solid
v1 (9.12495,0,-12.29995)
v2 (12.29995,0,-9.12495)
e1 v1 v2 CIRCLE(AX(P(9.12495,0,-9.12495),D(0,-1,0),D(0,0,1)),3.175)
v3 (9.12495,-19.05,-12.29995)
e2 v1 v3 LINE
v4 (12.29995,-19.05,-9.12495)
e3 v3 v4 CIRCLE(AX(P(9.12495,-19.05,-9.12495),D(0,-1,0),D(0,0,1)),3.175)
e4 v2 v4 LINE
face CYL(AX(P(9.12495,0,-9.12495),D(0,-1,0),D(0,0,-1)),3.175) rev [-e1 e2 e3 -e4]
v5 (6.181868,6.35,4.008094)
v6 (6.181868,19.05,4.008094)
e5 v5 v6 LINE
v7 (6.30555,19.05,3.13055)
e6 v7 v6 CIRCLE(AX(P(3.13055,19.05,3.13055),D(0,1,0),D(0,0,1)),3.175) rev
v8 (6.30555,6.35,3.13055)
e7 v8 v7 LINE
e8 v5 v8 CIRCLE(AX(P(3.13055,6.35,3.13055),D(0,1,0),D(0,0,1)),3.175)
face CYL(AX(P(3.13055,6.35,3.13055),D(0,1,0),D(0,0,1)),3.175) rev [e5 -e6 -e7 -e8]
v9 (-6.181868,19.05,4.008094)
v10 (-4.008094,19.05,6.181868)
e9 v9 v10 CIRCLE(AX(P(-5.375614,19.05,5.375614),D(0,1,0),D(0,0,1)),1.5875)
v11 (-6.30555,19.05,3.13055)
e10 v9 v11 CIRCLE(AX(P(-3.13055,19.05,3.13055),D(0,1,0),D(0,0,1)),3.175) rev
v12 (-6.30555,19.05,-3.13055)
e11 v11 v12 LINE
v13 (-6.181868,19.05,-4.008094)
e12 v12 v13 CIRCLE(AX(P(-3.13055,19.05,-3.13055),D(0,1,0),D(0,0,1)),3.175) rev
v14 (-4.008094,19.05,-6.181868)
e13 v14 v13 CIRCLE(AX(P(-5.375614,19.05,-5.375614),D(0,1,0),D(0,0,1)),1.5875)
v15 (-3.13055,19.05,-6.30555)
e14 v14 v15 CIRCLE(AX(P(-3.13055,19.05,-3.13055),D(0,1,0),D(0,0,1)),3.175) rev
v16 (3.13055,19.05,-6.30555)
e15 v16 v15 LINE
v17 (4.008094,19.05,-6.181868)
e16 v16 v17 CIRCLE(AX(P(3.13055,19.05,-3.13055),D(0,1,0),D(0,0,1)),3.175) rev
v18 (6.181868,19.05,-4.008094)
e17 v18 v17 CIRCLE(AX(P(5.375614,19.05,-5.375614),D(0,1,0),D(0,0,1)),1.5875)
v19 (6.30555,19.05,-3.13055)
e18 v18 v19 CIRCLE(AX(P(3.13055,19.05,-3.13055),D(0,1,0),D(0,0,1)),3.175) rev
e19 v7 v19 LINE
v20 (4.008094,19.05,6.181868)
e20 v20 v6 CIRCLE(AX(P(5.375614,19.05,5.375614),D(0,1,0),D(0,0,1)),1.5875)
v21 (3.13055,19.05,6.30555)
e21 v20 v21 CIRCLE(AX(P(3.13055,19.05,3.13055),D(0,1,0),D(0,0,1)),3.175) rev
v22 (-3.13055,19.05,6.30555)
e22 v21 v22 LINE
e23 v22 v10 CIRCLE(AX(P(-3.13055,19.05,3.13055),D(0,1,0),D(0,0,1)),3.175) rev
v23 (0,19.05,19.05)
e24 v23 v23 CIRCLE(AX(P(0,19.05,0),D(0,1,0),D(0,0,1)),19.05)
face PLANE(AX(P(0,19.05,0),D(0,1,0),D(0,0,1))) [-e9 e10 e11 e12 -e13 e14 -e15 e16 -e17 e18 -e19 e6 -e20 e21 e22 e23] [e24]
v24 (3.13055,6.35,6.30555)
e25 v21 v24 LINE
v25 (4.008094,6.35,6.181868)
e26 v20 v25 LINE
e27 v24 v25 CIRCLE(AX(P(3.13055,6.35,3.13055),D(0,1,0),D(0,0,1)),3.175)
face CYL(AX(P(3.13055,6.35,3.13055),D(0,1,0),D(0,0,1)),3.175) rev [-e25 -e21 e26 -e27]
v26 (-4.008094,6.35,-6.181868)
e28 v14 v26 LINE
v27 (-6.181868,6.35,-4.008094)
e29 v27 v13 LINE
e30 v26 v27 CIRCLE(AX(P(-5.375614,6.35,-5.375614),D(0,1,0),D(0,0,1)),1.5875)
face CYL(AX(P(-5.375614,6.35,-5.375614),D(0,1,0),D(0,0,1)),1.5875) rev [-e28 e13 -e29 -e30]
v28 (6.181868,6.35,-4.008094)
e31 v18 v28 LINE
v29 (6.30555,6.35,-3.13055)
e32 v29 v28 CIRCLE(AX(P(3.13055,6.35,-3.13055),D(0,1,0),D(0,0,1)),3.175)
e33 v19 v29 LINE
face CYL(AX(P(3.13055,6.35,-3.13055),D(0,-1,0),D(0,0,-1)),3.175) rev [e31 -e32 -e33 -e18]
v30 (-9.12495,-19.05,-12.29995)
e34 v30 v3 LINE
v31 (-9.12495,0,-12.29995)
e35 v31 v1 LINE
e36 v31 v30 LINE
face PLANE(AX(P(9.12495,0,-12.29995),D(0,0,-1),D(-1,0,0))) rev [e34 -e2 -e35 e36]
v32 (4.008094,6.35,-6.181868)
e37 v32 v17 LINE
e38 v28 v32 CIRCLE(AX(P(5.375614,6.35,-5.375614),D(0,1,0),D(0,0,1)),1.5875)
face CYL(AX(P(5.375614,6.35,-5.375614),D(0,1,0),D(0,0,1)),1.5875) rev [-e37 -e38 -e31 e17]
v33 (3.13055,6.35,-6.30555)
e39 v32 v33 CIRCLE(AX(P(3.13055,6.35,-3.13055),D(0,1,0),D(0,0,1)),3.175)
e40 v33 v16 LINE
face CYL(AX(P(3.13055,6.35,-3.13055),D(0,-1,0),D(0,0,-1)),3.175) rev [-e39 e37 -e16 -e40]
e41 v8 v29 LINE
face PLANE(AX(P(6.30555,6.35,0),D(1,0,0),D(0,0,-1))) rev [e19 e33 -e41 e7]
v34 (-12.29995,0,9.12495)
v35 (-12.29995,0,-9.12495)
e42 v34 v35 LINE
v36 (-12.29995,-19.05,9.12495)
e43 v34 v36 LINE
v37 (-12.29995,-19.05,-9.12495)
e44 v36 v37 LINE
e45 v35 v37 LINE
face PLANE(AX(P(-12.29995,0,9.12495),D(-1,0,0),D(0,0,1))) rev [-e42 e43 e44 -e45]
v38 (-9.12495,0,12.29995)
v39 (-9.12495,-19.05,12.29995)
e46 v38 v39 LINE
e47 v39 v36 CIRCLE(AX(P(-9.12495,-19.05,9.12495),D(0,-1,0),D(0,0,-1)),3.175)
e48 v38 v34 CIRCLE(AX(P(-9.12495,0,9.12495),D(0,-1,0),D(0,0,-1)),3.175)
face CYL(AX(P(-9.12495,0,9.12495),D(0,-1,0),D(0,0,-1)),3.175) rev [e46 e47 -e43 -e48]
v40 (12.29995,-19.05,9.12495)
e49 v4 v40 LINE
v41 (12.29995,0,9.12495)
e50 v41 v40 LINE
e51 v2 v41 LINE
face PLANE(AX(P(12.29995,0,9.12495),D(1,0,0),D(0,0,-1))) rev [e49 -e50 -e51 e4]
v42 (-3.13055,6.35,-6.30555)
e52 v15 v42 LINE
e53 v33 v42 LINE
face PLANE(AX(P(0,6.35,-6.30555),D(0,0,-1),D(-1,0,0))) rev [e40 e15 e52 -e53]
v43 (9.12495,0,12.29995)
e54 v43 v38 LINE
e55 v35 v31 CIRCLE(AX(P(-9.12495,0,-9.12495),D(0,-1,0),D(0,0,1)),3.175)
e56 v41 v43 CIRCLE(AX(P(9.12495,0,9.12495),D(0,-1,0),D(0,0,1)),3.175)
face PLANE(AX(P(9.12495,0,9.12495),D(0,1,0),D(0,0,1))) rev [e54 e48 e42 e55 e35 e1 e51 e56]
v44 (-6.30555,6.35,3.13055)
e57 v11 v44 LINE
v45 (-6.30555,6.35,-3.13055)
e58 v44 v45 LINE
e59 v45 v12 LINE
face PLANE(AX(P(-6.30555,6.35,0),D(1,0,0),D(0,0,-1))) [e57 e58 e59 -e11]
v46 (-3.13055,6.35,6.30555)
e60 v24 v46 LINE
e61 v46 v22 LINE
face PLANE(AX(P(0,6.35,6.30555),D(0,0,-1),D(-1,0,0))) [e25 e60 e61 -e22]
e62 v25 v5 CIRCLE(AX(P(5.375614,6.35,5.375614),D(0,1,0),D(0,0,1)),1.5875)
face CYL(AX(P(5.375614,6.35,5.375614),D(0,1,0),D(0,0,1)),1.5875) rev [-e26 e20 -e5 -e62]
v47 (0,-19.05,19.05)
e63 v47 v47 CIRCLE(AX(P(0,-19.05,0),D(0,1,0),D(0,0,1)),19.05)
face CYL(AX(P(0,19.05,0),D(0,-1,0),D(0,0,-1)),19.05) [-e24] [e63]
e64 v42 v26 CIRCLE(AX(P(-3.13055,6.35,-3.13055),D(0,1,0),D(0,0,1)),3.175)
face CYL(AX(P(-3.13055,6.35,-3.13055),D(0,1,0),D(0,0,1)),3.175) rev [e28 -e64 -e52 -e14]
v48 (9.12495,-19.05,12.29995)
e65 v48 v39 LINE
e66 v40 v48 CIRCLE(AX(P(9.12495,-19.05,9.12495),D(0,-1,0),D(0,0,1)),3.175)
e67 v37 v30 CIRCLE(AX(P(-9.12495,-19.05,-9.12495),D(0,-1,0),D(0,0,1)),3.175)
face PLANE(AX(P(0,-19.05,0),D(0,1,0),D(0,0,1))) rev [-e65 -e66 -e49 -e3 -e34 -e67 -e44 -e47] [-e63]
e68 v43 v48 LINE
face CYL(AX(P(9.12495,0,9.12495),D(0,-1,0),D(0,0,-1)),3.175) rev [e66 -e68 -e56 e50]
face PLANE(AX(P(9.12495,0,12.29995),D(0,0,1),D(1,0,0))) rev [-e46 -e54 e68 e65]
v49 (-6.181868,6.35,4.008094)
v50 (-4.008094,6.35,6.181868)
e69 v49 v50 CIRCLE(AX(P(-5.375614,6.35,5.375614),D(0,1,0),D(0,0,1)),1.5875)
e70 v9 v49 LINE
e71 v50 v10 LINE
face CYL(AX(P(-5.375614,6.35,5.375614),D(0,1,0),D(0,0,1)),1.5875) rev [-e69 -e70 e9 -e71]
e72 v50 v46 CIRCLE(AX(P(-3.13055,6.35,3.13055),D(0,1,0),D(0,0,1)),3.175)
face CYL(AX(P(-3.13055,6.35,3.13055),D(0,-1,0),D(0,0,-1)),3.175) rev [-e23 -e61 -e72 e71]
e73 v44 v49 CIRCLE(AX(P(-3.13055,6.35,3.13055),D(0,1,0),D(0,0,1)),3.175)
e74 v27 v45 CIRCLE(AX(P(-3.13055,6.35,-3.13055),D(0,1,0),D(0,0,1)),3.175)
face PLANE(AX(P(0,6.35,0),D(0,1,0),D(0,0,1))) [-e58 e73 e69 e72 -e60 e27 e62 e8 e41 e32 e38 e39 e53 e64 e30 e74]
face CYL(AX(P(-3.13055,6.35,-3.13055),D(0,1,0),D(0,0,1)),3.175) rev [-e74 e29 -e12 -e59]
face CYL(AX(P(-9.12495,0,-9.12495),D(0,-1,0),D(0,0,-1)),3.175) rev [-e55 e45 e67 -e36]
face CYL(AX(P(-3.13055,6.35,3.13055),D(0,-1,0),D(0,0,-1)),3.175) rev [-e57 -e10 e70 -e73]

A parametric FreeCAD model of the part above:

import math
import FreeCAD as App
import Part
import Sketcher
from FreeCAD import Vector
Q = App.Units.Quantity


def edges_at(feature, points):
    """Names of the edges that pass closest to the given points."""
    edges = feature.Shape.Edges
    near = lambda p: min(range(len(edges)), key=lambda i: edges[i].distToShape(Part.Vertex(*p))[0])
    return sorted({f"Edge{near(p) + 1}" for p in points})


def add_polygon(sketch, points):
    """Adds a closed chain of lines whose ends are joined by coincident constraints."""
    first, n = sketch.GeometryCount, len(points)
    for a, b in zip(points, points[1:] + points[:1]):
        sketch.addGeometry(Part.LineSegment(App.Vector(*a, 0), App.Vector(*b, 0)), False)
    for i in range(n):
        sketch.addConstraint(Sketcher.Constraint("Coincident", first + i, 2, first + (i + 1) % n, 1))

doc = App.newDocument("Part")
body = doc.addObject("PartDesign::Body", "Body")

sketch1 = doc.addObject("Sketcher::SketchObject", "Sketch")
body.addObject(sketch1)
sketch1.AttachmentSupport = (doc.XZ_Plane, [""])
sketch1.MapMode = "FlatFace"
sketch1.addGeometry(Part.Circle(Vector(0, 0, 0), Vector(0, 0, 1), 19), False)
sketch1.addConstraint([
    Sketcher.Constraint("Coincident", 0, 3, -1, 1),
    Sketcher.Constraint("Diameter", 0, Q("1.5 in")),
])
pad1 = doc.addObject("PartDesign::Pad", "Pad")
body.addObject(pad1)
pad1.Profile = sketch1
pad1.Length = Q("1.5 in")
pad1.Midplane = True

sketch2 = doc.addObject("Sketcher::SketchObject", "Sketch001")
body.addObject(sketch2)
sketch2.AttachmentSupport = (doc.XZ_Plane, [""])
sketch2.MapMode = "FlatFace"
sketch2.AttachmentOffset = App.Placement(Vector(0, 0, -0.75 * 25.4), App.Rotation())
add_polygon(sketch2, [(-6, -6), (-6, 6), (6, 6), (6, -6)])
sketch2.addConstraint([
    Sketcher.Constraint("Vertical", 0),
    Sketcher.Constraint("Horizontal", 1),
    Sketcher.Constraint("Vertical", 2),
    Sketcher.Constraint("Horizontal", 3),
    Sketcher.Constraint("Symmetric", 0, 2, 2, 2, -1, 1),
    Sketcher.Constraint("Equal", 3, 0),
    Sketcher.Constraint("DistanceX", 1, 1, 1, 2, Q("0.4965 in")),
])
pocket1 = doc.addObject("PartDesign::Pocket", "Pocket")
body.addObject(pocket1)
pocket1.Profile = sketch2
pocket1.Length = Q("0.5 in")
pocket1.Reversed = True

sketch3 = doc.addObject("Sketcher::SketchObject", "Sketch002")
body.addObject(sketch3)
sketch3.AttachmentSupport = (doc.XZ_Plane, [""])
sketch3.MapMode = "FlatFace"
sketch3.AttachmentOffset = App.Placement(Vector(0, 0, 0.75 * 25.4), App.Rotation())
sketch3.addGeometry([
    Part.LineSegment(Vector(9.1, 12.3, 0), Vector(-9.1, 12.3, 0)),
    Part.ArcOfCircle(Part.Circle(Vector(-9.1, 9.1, 0), Vector(0, 0, 1), 3.2), math.radians(90), math.radians(180)),
    Part.LineSegment(Vector(-12.3, 9.1, 0), Vector(-12.3, -9.1, 0)),
    Part.ArcOfCircle(Part.Circle(Vector(-9.1, -9.1, 0), Vector(0, 0, 1), 3.2), math.radians(-180), math.radians(-90)),
    Part.LineSegment(Vector(-9.1, -12.3, 0), Vector(9.1, -12.3, 0)),
    Part.ArcOfCircle(Part.Circle(Vector(9.1, -9.1, 0), Vector(0, 0, 1), 3.2), math.radians(-90), math.radians(0)),
    Part.LineSegment(Vector(12.3, -9.1, 0), Vector(12.3, 9.1, 0)),
    Part.ArcOfCircle(Part.Circle(Vector(9.1, 9.1, 0), Vector(0, 0, 1), 3.2), math.radians(0), math.radians(90)),
], False)
sketch3.addConstraint([
    Sketcher.Constraint("Tangent", 0, 2, 1, 1),
    Sketcher.Constraint("Tangent", 1, 2, 2, 1),
    Sketcher.Constraint("Tangent", 2, 2, 3, 1),
    Sketcher.Constraint("Tangent", 3, 2, 4, 1),
    Sketcher.Constraint("Tangent", 4, 2, 5, 1),
    Sketcher.Constraint("Tangent", 5, 2, 6, 1),
    Sketcher.Constraint("Tangent", 6, 2, 7, 1),
    Sketcher.Constraint("Tangent", 7, 2, 0, 1),
    Sketcher.Constraint("Horizontal", 0),
    Sketcher.Constraint("Vertical", 2),
    Sketcher.Constraint("Horizontal", 4),
    Sketcher.Constraint("Vertical", 6),
    Sketcher.Constraint("Equal", 1, 3),
    Sketcher.Constraint("Equal", 3, 5),
    Sketcher.Constraint("Equal", 5, 7),
    Sketcher.Constraint("Symmetric", 1, 3, 5, 3, -1, 1),
    Sketcher.Constraint("Equal", 4, 2),
    Sketcher.Constraint("Radius", 1, Q("0.125 in")),
    Sketcher.Constraint("DistanceX", 0, 2, 0, 1, Q("0.7185 in")),
])
pocket2 = doc.addObject("PartDesign::Pocket", "Pocket001")
body.addObject(pocket2)
pocket2.Profile = sketch3
pocket2.Length = Q("0.75 in")
doc.recompute()

fillet = doc.addObject("PartDesign::Fillet", "Fillet")
body.addObject(fillet)
fillet.Base = (pocket2, edges_at(pocket2, [
    (-6.306, 12.7, 6.306),
    (-6.306, 12.7, -6.306),
    (6.306, 12.7, -6.306),
    (6.306, 12.7, 6.306),
]))
fillet.Radius = Q("0.125 in")

sketch4 = doc.addObject("Sketcher::SketchObject", "Sketch003")
body.addObject(sketch4)
sketch4.AttachmentSupport = (doc.XZ_Plane, [""])
sketch4.MapMode = "FlatFace"
sketch4.AttachmentOffset = App.Placement(Vector(0, 0, -0.75 * 25.4), App.Rotation())
sketch4.addGeometry([
    Part.ArcOfCircle(Part.Circle(Vector(5.38, -5.38, 0), Vector(0, 0, 1), 1.59), math.radians(59), math.radians(211)),
    Part.ArcOfCircle(Part.Circle(Vector(5.38, -5.38, 0), Vector(0, 0, 1), 1.59), math.radians(54.14), math.radians(59.48)),
    Part.ArcOfCircle(Part.Circle(Vector(5.38, -5.38, 0), Vector(0, 0, 1), 1.59), math.radians(0), math.radians(54)),
    Part.ArcOfCircle(Part.Circle(Vector(5.38, -5.38, 0), Vector(0, 0, 1), 1.59), math.radians(-144), math.radians(0)),
    Part.ArcOfCircle(Part.Circle(Vector(5.38, -5.38, 0), Vector(0, 0, 1), 1.59), math.radians(-149.48), math.radians(-144.14)),
    Part.ArcOfCircle(Part.Circle(Vector(-5.38, -5.38, 0), Vector(0, 0, 1), 1.59), math.radians(0), math.radians(121)),
    Part.ArcOfCircle(Part.Circle(Vector(-5.38, -5.38, 0), Vector(0, 0, 1), 1.59), math.radians(-31), math.radians(0)),
    Part.ArcOfCircle(Part.Circle(Vector(-5.38, -5.38, 0), Vector(0, 0, 1), 1.59), math.radians(-35.86), math.radians(-30.52)),
    Part.ArcOfCircle(Part.Circle(Vector(-5.38, -5.38, 0), Vector(0, 0, 1), 1.59), math.radians(126), math.radians(324)),
    Part.ArcOfCircle(Part.Circle(Vector(-5.38, -5.38, 0), Vector(0, 0, 1), 1.59), math.radians(120.52), math.radians(125.86)),
    Part.ArcOfCircle(Part.Circle(Vector(-5.38, 5.38, 0), Vector(0, 0, 1), 1.59), math.radians(36), math.radians(234)),
    Part.ArcOfCircle(Part.Circle(Vector(-5.38, 5.38, 0), Vector(0, 0, 1), 1.59), math.radians(30.52), math.radians(35.86)),
    Part.ArcOfCircle(Part.Circle(Vector(-5.38, 5.38, 0), Vector(0, 0, 1), 1.59), math.radians(0), math.radians(31)),
    Part.ArcOfCircle(Part.Circle(Vector(-5.38, 5.38, 0), Vector(0, 0, 1), 1.59), math.radians(-121), math.radians(0)),
    Part.ArcOfCircle(Part.Circle(Vector(-5.38, 5.38, 0), Vector(0, 0, 1), 1.59), math.radians(-125.86), math.radians(-120.52)),
    Part.ArcOfCircle(Part.Circle(Vector(5.38, 5.38, 0), Vector(0, 0, 1), 1.59), math.radians(149), math.radians(301)),
    Part.ArcOfCircle(Part.Circle(Vector(5.38, 5.38, 0), Vector(0, 0, 1), 1.59), math.radians(144.14), math.radians(149.48)),
    Part.ArcOfCircle(Part.Circle(Vector(5.38, 5.38, 0), Vector(0, 0, 1), 1.59), math.radians(0), math.radians(144)),
    Part.ArcOfCircle(Part.Circle(Vector(5.38, 5.38, 0), Vector(0, 0, 1), 1.59), math.radians(-54), math.radians(0)),
    Part.ArcOfCircle(Part.Circle(Vector(5.38, 5.38, 0), Vector(0, 0, 1), 1.59), math.radians(-59.48), math.radians(-54.14)),
], False)
sketch4.addConstraint([
    Sketcher.Constraint("Tangent", 0, 1, 1, 2),
    Sketcher.Constraint("Tangent", 1, 1, 2, 2),
    Sketcher.Constraint("Tangent", 2, 1, 3, 2),
    Sketcher.Constraint("Tangent", 3, 1, 4, 2),
    Sketcher.Constraint("Tangent", 4, 1, 0, 2),
    Sketcher.Constraint("Tangent", 5, 1, 6, 2),
    Sketcher.Constraint("Tangent", 6, 1, 7, 2),
    Sketcher.Constraint("Tangent", 7, 1, 8, 2),
    Sketcher.Constraint("Tangent", 8, 1, 9, 2),
    Sketcher.Constraint("Tangent", 9, 1, 5, 2),
    Sketcher.Constraint("Tangent", 10, 1, 11, 2),
    Sketcher.Constraint("Tangent", 11, 1, 12, 2),
    Sketcher.Constraint("Tangent", 12, 1, 13, 2),
    Sketcher.Constraint("Tangent", 13, 1, 14, 2),
    Sketcher.Constraint("Tangent", 14, 1, 10, 2),
    Sketcher.Constraint("Tangent", 15, 1, 16, 2),
    Sketcher.Constraint("Tangent", 16, 1, 17, 2),
    Sketcher.Constraint("Tangent", 17, 1, 18, 2),
    Sketcher.Constraint("Tangent", 18, 1, 19, 2),
    Sketcher.Constraint("Tangent", 19, 1, 15, 2),
    Sketcher.Constraint("Coincident", 2, 3, 0, 3),
    Sketcher.Constraint("Coincident", 7, 3, 5, 3),
    Sketcher.Constraint("Coincident", 12, 3, 10, 3),
    Sketcher.Constraint("Coincident", 17, 3, 15, 3),
    Sketcher.Constraint("Equal", 4, 5),
    Sketcher.Constraint("Equal", 9, 10),
    Sketcher.Constraint("Equal", 14, 15),
    Sketcher.Constraint("Symmetric", 0, 3, 10, 3, -1, 1),
    Sketcher.Constraint("Symmetric", 5, 3, 15, 3, -1, 1),
    Sketcher.Constraint("Symmetric", 0, 3, 5, 3, -2),
    Sketcher.Constraint("Horizontal", 9, 3, 2, 1),
    Sketcher.Constraint("Horizontal", 2, 1, 5, 1),
    Sketcher.Constraint("Horizontal", 4, 1, 6, 1),
    Sketcher.Constraint("Horizontal", 3, 1, 7, 1),
    Sketcher.Constraint("Horizontal", 1, 1, 8, 1),
    Sketcher.Constraint("Horizontal", 0, 1, 9, 1),
    Sketcher.Constraint("Horizontal", 19, 3, 12, 1),
    Sketcher.Constraint("Horizontal", 11, 1, 15, 1),
    Sketcher.Constraint("Horizontal", 10, 1, 16, 1),
    Sketcher.Constraint("Horizontal", 12, 1, 17, 1),
    Sketcher.Constraint("Horizontal", 14, 1, 18, 1),
    Sketcher.Constraint("Horizontal", 13, 1, 19, 1),
    Sketcher.Constraint("Vertical", 7, 1, 10, 1),
    Sketcher.Constraint("Vertical", 6, 1, 11, 1),
    Sketcher.Constraint("Vertical", 9, 1, 13, 1),
    Sketcher.Constraint("Vertical", 8, 1, 14, 1),
    Sketcher.Constraint("Radius", 0, Q("0.0625 in")),
    Sketcher.Constraint("DistanceY", 1, 1, -1, 1, 4.089),
    Sketcher.Constraint("DistanceX", -1, 1, 3, 1, 4.089),
    Sketcher.Constraint("DistanceX", -1, 1, 1, 1, 6.30555),
    Sketcher.Constraint("DistanceY", 3, 1, -1, 1, 6.30555),
    Sketcher.Constraint("DistanceY", 4, 3, 0, 1, 1.36752),
    Sketcher.Constraint("DistanceX", 4, 1, 1, 3, 1.36752),
])
pocket3 = doc.addObject("PartDesign::Pocket", "Pocket002")
body.addObject(pocket3)
pocket3.Profile = sketch4
pocket3.Length = Q("0.5 in")
pocket3.Reversed = True

doc.recompute()
